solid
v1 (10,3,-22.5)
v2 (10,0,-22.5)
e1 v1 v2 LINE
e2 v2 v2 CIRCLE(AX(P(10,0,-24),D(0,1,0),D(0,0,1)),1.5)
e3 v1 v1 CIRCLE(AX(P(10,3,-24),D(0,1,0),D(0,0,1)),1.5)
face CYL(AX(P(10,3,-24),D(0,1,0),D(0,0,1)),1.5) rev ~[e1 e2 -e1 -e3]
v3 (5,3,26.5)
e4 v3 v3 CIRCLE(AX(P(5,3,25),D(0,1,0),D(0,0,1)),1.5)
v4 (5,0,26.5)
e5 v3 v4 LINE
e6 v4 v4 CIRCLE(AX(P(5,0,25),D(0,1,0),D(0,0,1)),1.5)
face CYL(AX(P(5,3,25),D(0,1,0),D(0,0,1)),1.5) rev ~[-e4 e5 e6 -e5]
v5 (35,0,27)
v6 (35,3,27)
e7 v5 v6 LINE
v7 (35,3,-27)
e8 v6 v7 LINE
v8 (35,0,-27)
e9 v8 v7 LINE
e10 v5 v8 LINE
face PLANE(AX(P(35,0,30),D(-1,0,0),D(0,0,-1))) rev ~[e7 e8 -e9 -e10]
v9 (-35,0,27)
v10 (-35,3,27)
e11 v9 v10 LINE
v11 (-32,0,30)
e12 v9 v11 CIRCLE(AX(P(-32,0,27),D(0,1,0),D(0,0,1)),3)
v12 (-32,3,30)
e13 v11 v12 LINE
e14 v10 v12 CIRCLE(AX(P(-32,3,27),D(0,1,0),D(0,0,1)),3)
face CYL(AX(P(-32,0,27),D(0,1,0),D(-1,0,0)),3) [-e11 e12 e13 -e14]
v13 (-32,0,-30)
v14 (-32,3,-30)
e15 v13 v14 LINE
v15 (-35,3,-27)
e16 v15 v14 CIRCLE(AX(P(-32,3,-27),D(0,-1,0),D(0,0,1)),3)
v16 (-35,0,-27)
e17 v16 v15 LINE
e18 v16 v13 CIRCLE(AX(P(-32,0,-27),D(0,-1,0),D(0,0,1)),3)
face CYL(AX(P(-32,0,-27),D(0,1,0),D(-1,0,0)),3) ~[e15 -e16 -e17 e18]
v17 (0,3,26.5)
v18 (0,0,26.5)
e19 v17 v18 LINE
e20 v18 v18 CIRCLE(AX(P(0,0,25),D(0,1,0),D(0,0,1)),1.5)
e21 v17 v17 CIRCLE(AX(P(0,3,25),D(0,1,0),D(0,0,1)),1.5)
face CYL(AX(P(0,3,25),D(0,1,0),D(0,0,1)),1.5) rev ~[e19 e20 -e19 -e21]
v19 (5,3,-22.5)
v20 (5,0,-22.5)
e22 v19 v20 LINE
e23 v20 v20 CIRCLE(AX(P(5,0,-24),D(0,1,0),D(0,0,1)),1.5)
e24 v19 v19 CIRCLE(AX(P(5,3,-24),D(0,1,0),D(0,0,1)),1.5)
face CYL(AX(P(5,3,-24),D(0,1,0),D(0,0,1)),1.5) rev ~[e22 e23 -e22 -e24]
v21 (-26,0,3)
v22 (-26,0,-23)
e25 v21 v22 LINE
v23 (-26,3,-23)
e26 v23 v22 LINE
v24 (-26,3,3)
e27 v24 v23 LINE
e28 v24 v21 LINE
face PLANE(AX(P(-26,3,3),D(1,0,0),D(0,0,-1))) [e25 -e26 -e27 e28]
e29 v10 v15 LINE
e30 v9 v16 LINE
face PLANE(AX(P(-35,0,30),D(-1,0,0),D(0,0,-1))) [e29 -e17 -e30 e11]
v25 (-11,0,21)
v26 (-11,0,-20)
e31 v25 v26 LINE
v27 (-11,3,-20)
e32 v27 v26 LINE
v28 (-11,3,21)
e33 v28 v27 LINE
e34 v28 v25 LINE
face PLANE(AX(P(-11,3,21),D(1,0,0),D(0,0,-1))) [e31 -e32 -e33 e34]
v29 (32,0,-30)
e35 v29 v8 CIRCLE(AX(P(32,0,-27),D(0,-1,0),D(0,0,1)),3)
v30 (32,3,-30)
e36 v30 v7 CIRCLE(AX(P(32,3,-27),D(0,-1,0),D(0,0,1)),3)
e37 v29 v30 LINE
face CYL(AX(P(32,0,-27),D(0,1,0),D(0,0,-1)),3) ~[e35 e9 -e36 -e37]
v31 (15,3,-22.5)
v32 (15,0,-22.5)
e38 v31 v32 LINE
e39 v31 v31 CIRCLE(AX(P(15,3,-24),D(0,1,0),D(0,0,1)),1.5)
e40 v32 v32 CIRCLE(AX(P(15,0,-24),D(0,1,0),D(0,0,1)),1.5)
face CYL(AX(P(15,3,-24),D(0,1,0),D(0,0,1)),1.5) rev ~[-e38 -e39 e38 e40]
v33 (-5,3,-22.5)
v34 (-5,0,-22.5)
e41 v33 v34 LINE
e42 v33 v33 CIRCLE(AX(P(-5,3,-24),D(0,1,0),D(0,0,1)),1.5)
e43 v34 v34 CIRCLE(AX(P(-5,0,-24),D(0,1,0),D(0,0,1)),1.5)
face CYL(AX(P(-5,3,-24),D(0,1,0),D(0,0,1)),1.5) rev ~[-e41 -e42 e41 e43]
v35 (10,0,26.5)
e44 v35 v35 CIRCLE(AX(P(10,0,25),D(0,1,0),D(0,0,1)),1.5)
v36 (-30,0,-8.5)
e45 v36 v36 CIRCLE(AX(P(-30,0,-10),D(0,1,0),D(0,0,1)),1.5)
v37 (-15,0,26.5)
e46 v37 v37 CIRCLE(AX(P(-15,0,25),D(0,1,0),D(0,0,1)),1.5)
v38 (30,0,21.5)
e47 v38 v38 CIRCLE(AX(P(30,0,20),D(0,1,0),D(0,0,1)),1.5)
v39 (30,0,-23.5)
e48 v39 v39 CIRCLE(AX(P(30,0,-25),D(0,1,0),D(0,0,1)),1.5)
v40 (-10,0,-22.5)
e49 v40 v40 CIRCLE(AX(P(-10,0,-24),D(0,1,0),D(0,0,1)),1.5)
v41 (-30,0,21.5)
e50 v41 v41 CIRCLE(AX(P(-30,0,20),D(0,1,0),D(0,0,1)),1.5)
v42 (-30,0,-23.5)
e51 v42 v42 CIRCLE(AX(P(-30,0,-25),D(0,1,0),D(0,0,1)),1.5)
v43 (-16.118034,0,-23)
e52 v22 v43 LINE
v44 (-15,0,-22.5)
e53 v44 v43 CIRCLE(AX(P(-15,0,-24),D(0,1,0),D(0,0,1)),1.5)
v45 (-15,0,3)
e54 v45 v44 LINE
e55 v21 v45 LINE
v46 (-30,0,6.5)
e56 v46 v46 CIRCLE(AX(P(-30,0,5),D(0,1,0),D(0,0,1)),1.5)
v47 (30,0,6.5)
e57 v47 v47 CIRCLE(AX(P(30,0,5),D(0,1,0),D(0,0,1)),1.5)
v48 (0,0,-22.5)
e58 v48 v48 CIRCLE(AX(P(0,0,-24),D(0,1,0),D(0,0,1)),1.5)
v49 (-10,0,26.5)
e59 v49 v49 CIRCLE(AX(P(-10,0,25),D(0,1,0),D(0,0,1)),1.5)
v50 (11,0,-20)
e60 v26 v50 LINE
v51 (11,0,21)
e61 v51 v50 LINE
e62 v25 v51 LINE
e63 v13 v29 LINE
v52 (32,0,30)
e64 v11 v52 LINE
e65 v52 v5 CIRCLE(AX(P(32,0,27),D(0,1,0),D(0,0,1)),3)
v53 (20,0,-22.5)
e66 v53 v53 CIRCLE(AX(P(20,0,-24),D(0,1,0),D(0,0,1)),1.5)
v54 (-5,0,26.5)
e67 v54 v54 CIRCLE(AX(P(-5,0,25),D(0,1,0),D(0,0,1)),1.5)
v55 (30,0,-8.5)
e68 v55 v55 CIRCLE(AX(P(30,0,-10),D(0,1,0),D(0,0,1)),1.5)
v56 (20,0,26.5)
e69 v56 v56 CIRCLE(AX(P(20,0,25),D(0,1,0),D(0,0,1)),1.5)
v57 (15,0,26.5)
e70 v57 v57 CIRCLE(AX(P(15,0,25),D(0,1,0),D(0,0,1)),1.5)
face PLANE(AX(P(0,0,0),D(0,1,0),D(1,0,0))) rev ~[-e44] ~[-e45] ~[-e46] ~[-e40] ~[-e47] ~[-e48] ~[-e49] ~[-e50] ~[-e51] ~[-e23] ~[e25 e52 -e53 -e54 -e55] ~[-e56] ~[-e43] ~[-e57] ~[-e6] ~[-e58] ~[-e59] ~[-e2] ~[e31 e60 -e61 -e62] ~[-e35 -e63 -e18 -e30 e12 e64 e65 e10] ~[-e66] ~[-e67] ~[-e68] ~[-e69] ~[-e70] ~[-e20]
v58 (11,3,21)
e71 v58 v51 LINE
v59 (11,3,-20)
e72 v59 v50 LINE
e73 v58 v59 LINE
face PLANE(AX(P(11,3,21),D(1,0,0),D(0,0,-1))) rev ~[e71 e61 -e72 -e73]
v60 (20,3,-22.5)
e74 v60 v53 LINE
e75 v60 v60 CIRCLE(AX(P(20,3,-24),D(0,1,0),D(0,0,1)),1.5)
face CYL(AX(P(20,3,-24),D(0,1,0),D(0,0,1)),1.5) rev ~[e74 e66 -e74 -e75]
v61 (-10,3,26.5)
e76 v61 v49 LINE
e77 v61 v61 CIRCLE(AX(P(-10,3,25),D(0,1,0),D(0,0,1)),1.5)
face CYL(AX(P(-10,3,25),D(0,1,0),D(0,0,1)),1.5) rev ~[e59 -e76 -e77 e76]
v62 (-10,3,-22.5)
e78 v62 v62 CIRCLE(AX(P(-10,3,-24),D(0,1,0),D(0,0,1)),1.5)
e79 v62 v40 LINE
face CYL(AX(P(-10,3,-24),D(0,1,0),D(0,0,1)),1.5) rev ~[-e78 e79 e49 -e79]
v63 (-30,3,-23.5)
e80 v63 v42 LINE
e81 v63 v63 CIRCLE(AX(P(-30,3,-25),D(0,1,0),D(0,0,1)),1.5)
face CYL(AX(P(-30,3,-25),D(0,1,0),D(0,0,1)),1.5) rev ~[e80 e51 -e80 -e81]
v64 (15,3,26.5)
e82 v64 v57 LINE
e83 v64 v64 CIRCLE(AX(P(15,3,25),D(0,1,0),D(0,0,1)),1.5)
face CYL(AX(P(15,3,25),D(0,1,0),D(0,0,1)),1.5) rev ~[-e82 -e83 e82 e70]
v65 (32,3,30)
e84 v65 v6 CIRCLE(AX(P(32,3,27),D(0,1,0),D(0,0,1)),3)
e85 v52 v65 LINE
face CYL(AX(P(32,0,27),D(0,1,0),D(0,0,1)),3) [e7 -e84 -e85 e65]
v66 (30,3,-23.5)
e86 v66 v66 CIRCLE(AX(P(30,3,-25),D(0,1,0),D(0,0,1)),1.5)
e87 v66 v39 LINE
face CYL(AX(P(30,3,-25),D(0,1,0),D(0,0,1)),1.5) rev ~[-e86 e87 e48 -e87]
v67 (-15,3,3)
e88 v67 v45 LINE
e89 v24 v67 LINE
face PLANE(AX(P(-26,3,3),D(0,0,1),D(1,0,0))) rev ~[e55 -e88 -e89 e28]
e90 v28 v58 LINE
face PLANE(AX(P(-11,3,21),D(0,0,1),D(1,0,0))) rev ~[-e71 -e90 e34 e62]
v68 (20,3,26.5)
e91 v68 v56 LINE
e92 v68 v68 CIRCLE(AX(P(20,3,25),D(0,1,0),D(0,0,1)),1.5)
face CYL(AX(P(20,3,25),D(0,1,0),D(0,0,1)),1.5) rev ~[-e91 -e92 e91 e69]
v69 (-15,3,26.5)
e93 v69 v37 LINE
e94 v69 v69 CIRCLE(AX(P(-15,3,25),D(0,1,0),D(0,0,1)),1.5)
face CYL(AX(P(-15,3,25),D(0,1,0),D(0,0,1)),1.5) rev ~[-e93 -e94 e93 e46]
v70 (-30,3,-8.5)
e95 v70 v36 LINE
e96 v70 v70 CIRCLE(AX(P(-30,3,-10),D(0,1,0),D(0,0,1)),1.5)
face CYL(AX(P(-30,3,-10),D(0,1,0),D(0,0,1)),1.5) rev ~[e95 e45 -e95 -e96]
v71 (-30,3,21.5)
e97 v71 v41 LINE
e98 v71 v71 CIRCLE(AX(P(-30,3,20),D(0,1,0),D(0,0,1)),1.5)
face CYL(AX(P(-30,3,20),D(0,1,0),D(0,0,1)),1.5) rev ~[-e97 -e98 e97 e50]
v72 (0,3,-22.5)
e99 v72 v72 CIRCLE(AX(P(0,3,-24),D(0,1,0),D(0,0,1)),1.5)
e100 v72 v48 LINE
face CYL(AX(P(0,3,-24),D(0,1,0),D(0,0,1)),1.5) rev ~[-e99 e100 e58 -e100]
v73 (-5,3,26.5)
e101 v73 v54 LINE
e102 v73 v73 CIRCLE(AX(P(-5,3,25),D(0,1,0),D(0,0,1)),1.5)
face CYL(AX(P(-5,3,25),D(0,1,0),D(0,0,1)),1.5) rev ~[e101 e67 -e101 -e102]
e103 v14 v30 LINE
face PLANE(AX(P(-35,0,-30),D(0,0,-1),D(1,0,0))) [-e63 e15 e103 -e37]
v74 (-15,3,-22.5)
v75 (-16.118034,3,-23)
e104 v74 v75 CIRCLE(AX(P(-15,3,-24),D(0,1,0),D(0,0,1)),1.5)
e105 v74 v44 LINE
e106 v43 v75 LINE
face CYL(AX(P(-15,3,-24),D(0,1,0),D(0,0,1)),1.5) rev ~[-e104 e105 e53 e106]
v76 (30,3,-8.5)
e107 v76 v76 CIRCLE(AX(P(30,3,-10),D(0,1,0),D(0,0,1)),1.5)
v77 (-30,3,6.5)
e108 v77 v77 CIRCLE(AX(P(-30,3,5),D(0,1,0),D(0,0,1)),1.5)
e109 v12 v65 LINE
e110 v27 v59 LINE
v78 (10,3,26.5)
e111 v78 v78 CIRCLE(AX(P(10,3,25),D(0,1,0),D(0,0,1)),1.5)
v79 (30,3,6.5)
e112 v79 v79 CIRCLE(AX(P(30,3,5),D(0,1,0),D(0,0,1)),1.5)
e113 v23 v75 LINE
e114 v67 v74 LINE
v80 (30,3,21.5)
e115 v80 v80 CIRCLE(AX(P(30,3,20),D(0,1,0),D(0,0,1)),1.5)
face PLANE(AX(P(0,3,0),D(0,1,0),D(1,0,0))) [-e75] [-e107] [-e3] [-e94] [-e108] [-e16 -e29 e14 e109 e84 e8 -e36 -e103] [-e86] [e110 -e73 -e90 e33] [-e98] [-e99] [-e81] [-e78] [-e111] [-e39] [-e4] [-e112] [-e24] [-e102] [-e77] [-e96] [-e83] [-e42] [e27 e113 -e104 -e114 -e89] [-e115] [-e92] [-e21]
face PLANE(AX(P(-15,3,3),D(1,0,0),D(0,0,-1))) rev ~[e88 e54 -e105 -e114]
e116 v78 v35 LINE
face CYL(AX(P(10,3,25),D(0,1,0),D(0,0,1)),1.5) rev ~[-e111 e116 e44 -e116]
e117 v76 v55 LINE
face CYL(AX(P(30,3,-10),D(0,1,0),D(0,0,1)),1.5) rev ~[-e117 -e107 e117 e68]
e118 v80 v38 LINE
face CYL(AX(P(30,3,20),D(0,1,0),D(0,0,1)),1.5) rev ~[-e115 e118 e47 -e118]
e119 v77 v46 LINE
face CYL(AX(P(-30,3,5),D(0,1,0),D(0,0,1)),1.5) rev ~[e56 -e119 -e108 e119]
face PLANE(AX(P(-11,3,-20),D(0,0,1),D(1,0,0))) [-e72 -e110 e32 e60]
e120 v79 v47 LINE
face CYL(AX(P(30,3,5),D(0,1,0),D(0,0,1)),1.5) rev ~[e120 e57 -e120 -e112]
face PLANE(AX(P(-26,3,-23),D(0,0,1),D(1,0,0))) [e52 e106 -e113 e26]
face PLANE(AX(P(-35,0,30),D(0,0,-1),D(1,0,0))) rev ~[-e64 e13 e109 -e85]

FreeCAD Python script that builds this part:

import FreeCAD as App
import Part
import Sketcher


def edges_at(feature, points):
    """Names of the edges that pass closest to the given points."""
    edges = feature.Shape.Edges
    near = lambda p: min(range(len(edges)), key=lambda i: edges[i].distToShape(Part.Vertex(*p))[0])
    return sorted({f"Edge{near(p) + 1}" for p in points})


def add_polygon(sketch, points):
    """Adds a closed chain of lines whose ends are joined by coincident constraints."""
    first, n = sketch.GeometryCount, len(points)
    for a, b in zip(points, points[1:] + points[:1]):
        sketch.addGeometry(Part.LineSegment(App.Vector(*a, 0), App.Vector(*b, 0)), False)
    for i in range(n):
        sketch.addConstraint(Sketcher.Constraint("Coincident", first + i, 2, first + (i + 1) % n, 1))

doc = App.newDocument("Part")
body = doc.addObject("PartDesign::Body", "Body")

# Sketch on XZ plane
sketch1 = body.newObject("Sketcher::SketchObject", "Sketch")
sketch1.AttachmentSupport = (doc.getObject("XZ_Plane"), [""])
sketch1.MapMode = "FlatFace"
add_polygon(sketch1, [(-35, -30), (-35, 30), (35, 30), (35, -30)])  # lines 0-3
sketch1.addConstraint(Sketcher.Constraint("Vertical", 0))
sketch1.addConstraint(Sketcher.Constraint("Horizontal", 1))
sketch1.addConstraint(Sketcher.Constraint("Vertical", 2))
sketch1.addConstraint(Sketcher.Constraint("Horizontal", 3))
sketch1.addConstraint(Sketcher.Constraint("Symmetric", 0, 2, 2, 2, -1, 1))
sketch1.addConstraint(Sketcher.Constraint("DistanceX", 1, 1, 1, 2, 70.0))
sketch1.addConstraint(Sketcher.Constraint("DistanceY", 0, 1, 0, 2, 60.0))
pad1 = body.newObject("PartDesign::Pad", "Pad")
pad1.Profile = sketch1
pad1.Length = 3
pad1.Reversed = True

# Sketch on XZ plane
sketch2 = body.newObject("Sketcher::SketchObject", "Sketch001")
sketch2.AttachmentSupport = (doc.getObject("XZ_Plane"), [""])
sketch2.MapMode = "FlatFace"
sketch2.AttachmentOffset = App.Placement(App.Vector(0, 0, -3), App.Rotation())
sketch2.addGeometry(Part.Circle(App.Vector(-30, -25, 0), App.Vector(0, 0, 1), 1.5), False)
sketch2.addGeometry(Part.Circle(App.Vector(30, -25, 0), App.Vector(0, 0, 1), 1.5), False)
sketch2.addGeometry(Part.Circle(App.Vector(30, -10, 0), App.Vector(0, 0, 1), 1.5), False)
sketch2.addGeometry(Part.Circle(App.Vector(30, 5, 0), App.Vector(0, 0, 1), 1.5), False)
sketch2.addGeometry(Part.Circle(App.Vector(30, 20, 0), App.Vector(0, 0, 1), 1.5), False)
sketch2.addGeometry(Part.Circle(App.Vector(-30, -10, 0), App.Vector(0, 0, 1), 1.5), False)
sketch2.addGeometry(Part.Circle(App.Vector(-30, 5, 0), App.Vector(0, 0, 1), 1.5), False)
sketch2.addGeometry(Part.Circle(App.Vector(-30, 20, 0), App.Vector(0, 0, 1), 1.5), False)
sketch2.addConstraint(Sketcher.Constraint("Equal", 0, 1))
sketch2.addConstraint(Sketcher.Constraint("Equal", 1, 2))
sketch2.addConstraint(Sketcher.Constraint("Equal", 2, 3))
sketch2.addConstraint(Sketcher.Constraint("Equal", 3, 4))
sketch2.addConstraint(Sketcher.Constraint("Equal", 4, 5))
sketch2.addConstraint(Sketcher.Constraint("Equal", 5, 6))
sketch2.addConstraint(Sketcher.Constraint("Equal", 6, 7))
sketch2.addConstraint(Sketcher.Constraint("Symmetric", 0, 3, 1, 3, -2))
sketch2.addConstraint(Sketcher.Constraint("Symmetric", 2, 3, 5, 3, -2))
sketch2.addConstraint(Sketcher.Constraint("Symmetric", 3, 3, 6, 3, -2))
sketch2.addConstraint(Sketcher.Constraint("Symmetric", 4, 3, 7, 3, -2))
sketch2.addConstraint(Sketcher.Constraint("Vertical", 1, 3, 2, 3))
sketch2.addConstraint(Sketcher.Constraint("Vertical", 2, 3, 3, 3))
sketch2.addConstraint(Sketcher.Constraint("Vertical", 3, 3, 4, 3))
sketch2.addConstraint(Sketcher.Constraint("Diameter", 0, 3.0))
sketch2.addConstraint(Sketcher.Constraint("DistanceX", 0, 3, -1, 1, 30.0))
sketch2.addConstraint(Sketcher.Constraint("DistanceY", 0, 3, -1, 1, 25.0))
sketch2.addConstraint(Sketcher.Constraint("DistanceY", 2, 3, -1, 1, 10.0))
sketch2.addConstraint(Sketcher.Constraint("DistanceY", -1, 1, 3, 3, 5.0))
sketch2.addConstraint(Sketcher.Constraint("DistanceY", -1, 1, 4, 3, 20.0))
pocket1 = body.newObject("PartDesign::Pocket", "Pocket")
pocket1.Profile = sketch2
pocket1.Length = 3
pocket1.Reversed = True

# Sketch on XZ plane
sketch3 = body.newObject("Sketcher::SketchObject", "Sketch002")
sketch3.AttachmentSupport = (doc.getObject("XZ_Plane"), [""])
sketch3.MapMode = "FlatFace"
sketch3.AttachmentOffset = App.Placement(App.Vector(0, 0, -3), App.Rotation())
sketch3.addGeometry(Part.Circle(App.Vector(20, 25, 0), App.Vector(0, 0, 1), 1.5), False)
sketch3.addGeometry(Part.Circle(App.Vector(15, 25, 0), App.Vector(0, 0, 1), 1.5), False)
sketch3.addGeometry(Part.Circle(App.Vector(5, 25, 0), App.Vector(0, 0, 1), 1.5), False)
sketch3.addGeometry(Part.Circle(App.Vector(10, 25, 0), App.Vector(0, 0, 1), 1.5), False)
sketch3.addGeometry(Part.Circle(App.Vector(-5, 25, 0), App.Vector(0, 0, 1), 1.5), False)
sketch3.addGeometry(Part.Circle(App.Vector(-10, 25, 0), App.Vector(0, 0, 1), 1.5), False)
sketch3.addGeometry(Part.Circle(App.Vector(-15, 25, 0), App.Vector(0, 0, 1), 1.5), False)
sketch3.addGeometry(Part.Circle(App.Vector(-15, -24, 0), App.Vector(0, 0, 1), 1.5), False)
sketch3.addGeometry(Part.Circle(App.Vector(-10, -24, 0), App.Vector(0, 0, 1), 1.5), False)
sketch3.addGeometry(Part.Circle(App.Vector(0, -24, 0), App.Vector(0, 0, 1), 1.5), False)
sketch3.addGeometry(Part.Circle(App.Vector(5, -24, 0), App.Vector(0, 0, 1), 1.5), False)
sketch3.addGeometry(Part.Circle(App.Vector(10, -24, 0), App.Vector(0, 0, 1), 1.5), False)
sketch3.addGeometry(Part.Circle(App.Vector(15, -24, 0), App.Vector(0, 0, 1), 1.5), False)
sketch3.addGeometry(Part.Circle(App.Vector(20, -24, 0), App.Vector(0, 0, 1), 1.5), False)
sketch3.addGeometry(Part.Circle(App.Vector(0, 25, 0), App.Vector(0, 0, 1), 1.5), False)
sketch3.addGeometry(Part.Circle(App.Vector(-5, -24, 0), App.Vector(0, 0, 1), 1.5), False)
sketch3.addConstraint(Sketcher.Constraint("Equal", 0, 1))
sketch3.addConstraint(Sketcher.Constraint("Equal", 1, 2))
sketch3.addConstraint(Sketcher.Constraint("Equal", 2, 3))
sketch3.addConstraint(Sketcher.Constraint("Equal", 3, 4))
sketch3.addConstraint(Sketcher.Constraint("Equal", 4, 5))
sketch3.addConstraint(Sketcher.Constraint("Equal", 5, 6))
sketch3.addConstraint(Sketcher.Constraint("Equal", 6, 7))
sketch3.addConstraint(Sketcher.Constraint("Equal", 7, 8))
sketch3.addConstraint(Sketcher.Constraint("Equal", 8, 9))
sketch3.addConstraint(Sketcher.Constraint("Equal", 9, 10))
sketch3.addConstraint(Sketcher.Constraint("Equal", 10, 11))
sketch3.addConstraint(Sketcher.Constraint("Equal", 11, 12))
sketch3.addConstraint(Sketcher.Constraint("Equal", 12, 13))
sketch3.addConstraint(Sketcher.Constraint("Equal", 13, 14))
sketch3.addConstraint(Sketcher.Constraint("Equal", 14, 15))
sketch3.addConstraint(Sketcher.Constraint("Symmetric", 2, 3, 4, 3, -2))
sketch3.addConstraint(Sketcher.Constraint("Symmetric", 3, 3, 5, 3, -2))
sketch3.addConstraint(Sketcher.Constraint("Symmetric", 1, 3, 6, 3, -2))
sketch3.addConstraint(Sketcher.Constraint("Symmetric", 8, 3, 11, 3, -2))
sketch3.addConstraint(Sketcher.Constraint("Symmetric", 7, 3, 12, 3, -2))
sketch3.addConstraint(Sketcher.Constraint("Symmetric", 10, 3, 15, 3, -2))
sketch3.addConstraint(Sketcher.Constraint("PointOnObject", 9, 3, -2))
sketch3.addConstraint(Sketcher.Constraint("PointOnObject", 14, 3, -2))
sketch3.addConstraint(Sketcher.Constraint("Horizontal", 0, 3, 1, 3))
sketch3.addConstraint(Sketcher.Constraint("Horizontal", 1, 3, 2, 3))
sketch3.addConstraint(Sketcher.Constraint("Horizontal", 2, 3, 3, 3))
sketch3.addConstraint(Sketcher.Constraint("Horizontal", 7, 3, 8, 3))
sketch3.addConstraint(Sketcher.Constraint("Horizontal", 8, 3, 9, 3))
sketch3.addConstraint(Sketcher.Constraint("Horizontal", 9, 3, 10, 3))
sketch3.addConstraint(Sketcher.Constraint("Horizontal", 12, 3, 13, 3))
sketch3.addConstraint(Sketcher.Constraint("Horizontal", 6, 3, 14, 3))
sketch3.addConstraint(Sketcher.Constraint("Vertical", 6, 3, 7, 3))
sketch3.addConstraint(Sketcher.Constraint("Vertical", 5, 3, 8, 3))
sketch3.addConstraint(Sketcher.Constraint("Vertical", 2, 3, 10, 3))
sketch3.addConstraint(Sketcher.Constraint("Vertical", 0, 3, 13, 3))
sketch3.addConstraint(Sketcher.Constraint("Diameter", 0, 3.0))
sketch3.addConstraint(Sketcher.Constraint("DistanceX", -1, 1, 0, 3, 20.0))
sketch3.addConstraint(Sketcher.Constraint("DistanceY", -1, 1, 0, 3, 25.0))
sketch3.addConstraint(Sketcher.Constraint("DistanceX", -1, 1, 1, 3, 15.0))
sketch3.addConstraint(Sketcher.Constraint("DistanceX", -1, 1, 2, 3, 5.0))
sketch3.addConstraint(Sketcher.Constraint("DistanceX", -1, 1, 3, 3, 10.0))
sketch3.addConstraint(Sketcher.Constraint("DistanceY", 7, 3, -1, 1, 24.0))
pocket2 = body.newObject("PartDesign::Pocket", "Pocket001")
pocket2.Profile = sketch3
pocket2.Length = 3
pocket2.Reversed = True

# Sketch on XZ plane
sketch4 = body.newObject("Sketcher::SketchObject", "Sketch003")
sketch4.AttachmentSupport = (doc.getObject("XZ_Plane"), [""])
sketch4.MapMode = "FlatFace"
sketch4.AttachmentOffset = App.Placement(App.Vector(0, 0, -3), App.Rotation())
add_polygon(sketch4, [(-11, -20), (-11, 21), (11, 21), (11, -20)])  # lines 0-3
add_polygon(sketch4, [(-26, -23), (-26, 3), (-15, 3), (-15, -23)])  # lines 4-7
sketch4.addConstraint(Sketcher.Constraint("Vertical", 0))
sketch4.addConstraint(Sketcher.Constraint("Horizontal", 1))
sketch4.addConstraint(Sketcher.Constraint("Vertical", 2))
sketch4.addConstraint(Sketcher.Constraint("Horizontal", 3))
sketch4.addConstraint(Sketcher.Constraint("Vertical", 4))
sketch4.addConstraint(Sketcher.Constraint("Horizontal", 5))
sketch4.addConstraint(Sketcher.Constraint("Vertical", 6))
sketch4.addConstraint(Sketcher.Constraint("Horizontal", 7))
sketch4.addConstraint(Sketcher.Constraint("DistanceX", 1, 1, 1, 2, 22.0))
sketch4.addConstraint(Sketcher.Constraint("DistanceX", 5, 1, 5, 2, 11.0))
sketch4.addConstraint(Sketcher.Constraint("DistanceY", 0, 1, 0, 2, 41.0))
sketch4.addConstraint(Sketcher.Constraint("DistanceY", 4, 1, 4, 2, 26.0))
sketch4.addConstraint(Sketcher.Constraint("DistanceX", 0, 2, -1, 1, 11.0))
sketch4.addConstraint(Sketcher.Constraint("DistanceY", -1, 1, 0, 2, 21.0))
sketch4.addConstraint(Sketcher.Constraint("DistanceX", 4, 2, -1, 1, 26.0))
sketch4.addConstraint(Sketcher.Constraint("DistanceY", -1, 1, 4, 2, 3.0))
pocket3 = body.newObject("PartDesign::Pocket", "Pocket002")
pocket3.Profile = sketch4
pocket3.Length = 3
pocket3.Reversed = True
doc.recompute()

fillet = body.newObject("PartDesign::Fillet", "Fillet")
fillet.Base = (pocket3, edges_at(pocket3, [
    (-35, 1.5, -30),
    (35, 1.5, -30),
    (35, 1.5, 30),
    (-35, 1.5, 30),
]))
fillet.Radius = 3

doc.recompute()
